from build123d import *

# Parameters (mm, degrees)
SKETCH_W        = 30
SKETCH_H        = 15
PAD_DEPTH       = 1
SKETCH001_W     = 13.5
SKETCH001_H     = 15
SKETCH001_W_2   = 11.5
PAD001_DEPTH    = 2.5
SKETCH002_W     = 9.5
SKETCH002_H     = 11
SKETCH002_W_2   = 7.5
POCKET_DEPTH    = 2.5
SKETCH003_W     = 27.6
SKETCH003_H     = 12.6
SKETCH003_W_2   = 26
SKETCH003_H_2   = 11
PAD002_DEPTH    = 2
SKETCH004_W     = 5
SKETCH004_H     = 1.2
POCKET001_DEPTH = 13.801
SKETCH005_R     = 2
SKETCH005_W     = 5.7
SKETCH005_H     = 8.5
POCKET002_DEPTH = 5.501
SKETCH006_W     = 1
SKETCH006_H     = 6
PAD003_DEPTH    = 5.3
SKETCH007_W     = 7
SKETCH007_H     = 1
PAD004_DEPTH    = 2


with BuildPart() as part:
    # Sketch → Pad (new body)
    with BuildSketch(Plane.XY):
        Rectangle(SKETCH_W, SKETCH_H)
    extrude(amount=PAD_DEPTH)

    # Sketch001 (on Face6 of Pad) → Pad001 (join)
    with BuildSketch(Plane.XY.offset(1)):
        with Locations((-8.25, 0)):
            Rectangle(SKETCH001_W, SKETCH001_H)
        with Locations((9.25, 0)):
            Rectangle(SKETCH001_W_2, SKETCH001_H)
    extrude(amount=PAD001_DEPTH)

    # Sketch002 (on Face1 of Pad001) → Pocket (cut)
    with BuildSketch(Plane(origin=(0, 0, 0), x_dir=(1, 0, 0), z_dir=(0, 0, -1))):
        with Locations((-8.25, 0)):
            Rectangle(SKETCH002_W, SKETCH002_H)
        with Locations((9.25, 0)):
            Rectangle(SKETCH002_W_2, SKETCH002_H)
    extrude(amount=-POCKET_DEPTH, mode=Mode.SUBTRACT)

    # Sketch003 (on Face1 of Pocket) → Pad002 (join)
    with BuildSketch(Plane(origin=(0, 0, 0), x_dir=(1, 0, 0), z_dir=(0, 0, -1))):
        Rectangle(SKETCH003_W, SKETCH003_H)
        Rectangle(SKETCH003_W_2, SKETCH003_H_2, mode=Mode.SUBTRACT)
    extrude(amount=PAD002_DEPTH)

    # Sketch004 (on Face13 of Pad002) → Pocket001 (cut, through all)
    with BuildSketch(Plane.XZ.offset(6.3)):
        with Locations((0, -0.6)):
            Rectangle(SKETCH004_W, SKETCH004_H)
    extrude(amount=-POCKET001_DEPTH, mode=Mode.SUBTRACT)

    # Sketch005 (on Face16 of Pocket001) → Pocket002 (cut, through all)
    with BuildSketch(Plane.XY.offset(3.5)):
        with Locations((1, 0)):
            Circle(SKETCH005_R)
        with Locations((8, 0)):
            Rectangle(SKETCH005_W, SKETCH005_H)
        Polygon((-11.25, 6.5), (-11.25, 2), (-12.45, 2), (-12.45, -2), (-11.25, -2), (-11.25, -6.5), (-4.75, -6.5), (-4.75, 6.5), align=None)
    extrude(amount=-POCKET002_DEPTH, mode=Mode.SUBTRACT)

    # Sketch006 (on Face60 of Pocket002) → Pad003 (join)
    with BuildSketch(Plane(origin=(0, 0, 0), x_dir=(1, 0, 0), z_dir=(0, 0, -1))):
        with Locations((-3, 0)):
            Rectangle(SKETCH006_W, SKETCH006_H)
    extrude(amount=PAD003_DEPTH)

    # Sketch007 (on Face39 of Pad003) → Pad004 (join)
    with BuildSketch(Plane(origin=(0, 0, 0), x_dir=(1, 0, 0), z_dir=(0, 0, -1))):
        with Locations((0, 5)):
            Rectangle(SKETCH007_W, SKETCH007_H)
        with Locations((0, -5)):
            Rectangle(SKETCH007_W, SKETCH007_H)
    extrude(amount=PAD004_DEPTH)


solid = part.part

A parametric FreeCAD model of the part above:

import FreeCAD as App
import Part
import Sketcher
from FreeCAD import Vector
Q = App.Units.Quantity


def add_polygon(sketch, points):
    """Adds a closed chain of lines whose ends are joined by coincident constraints."""
    first, n = sketch.GeometryCount, len(points)
    for a, b in zip(points, points[1:] + points[:1]):
        sketch.addGeometry(Part.LineSegment(App.Vector(*a, 0), App.Vector(*b, 0)), False)
    for i in range(n):
        sketch.addConstraint(Sketcher.Constraint("Coincident", first + i, 2, first + (i + 1) % n, 1))

doc = App.newDocument("Part")
body = doc.addObject("PartDesign::Body", "Body")

# Sketch on XY plane
sketch1 = doc.addObject("Sketcher::SketchObject", "Sketch")
body.addObject(sketch1)
sketch1.AttachmentSupport = (doc.XY_Plane, [""])
sketch1.MapMode = "FlatFace"
add_polygon(sketch1, [(-15, 8), (-15, -8), (15, -8), (15, 8)])  # lines 0-3
sketch1.addConstraint(Sketcher.Constraint("Vertical", 0))
sketch1.addConstraint(Sketcher.Constraint("Horizontal", 1))
sketch1.addConstraint(Sketcher.Constraint("Vertical", 2))
sketch1.addConstraint(Sketcher.Constraint("Horizontal", 3))
sketch1.addConstraint(Sketcher.Constraint("Symmetric", 0, 2, 2, 2, -1, 1))
sketch1.addConstraint(Sketcher.Constraint("DistanceX", 1, 1, 1, 2, Q("30 mm")))
sketch1.addConstraint(Sketcher.Constraint("DistanceY", 0, 2, 0, 1, Q("15 mm")))
pad1 = doc.addObject("PartDesign::Pad", "Pad")
body.addObject(pad1)
pad1.Profile = sketch1
pad1.Length = 1

# Sketch on XY plane
sketch2 = doc.addObject("Sketcher::SketchObject", "Sketch001")
body.addObject(sketch2)
sketch2.AttachmentSupport = (doc.XY_Plane, [""])
sketch2.MapMode = "FlatFace"
sketch2.AttachmentOffset = App.Placement(Vector(0, 0, 1), App.Rotation())
add_polygon(sketch2, [(-15, 8), (-15, -8), (-2, -8), (-2, 8)])  # lines 0-3
add_polygon(sketch2, [(4, 8), (4, -8), (15, -8), (15, 8)])  # lines 4-7
sketch2.addConstraint(Sketcher.Constraint("Vertical", 0))
sketch2.addConstraint(Sketcher.Constraint("Horizontal", 1))
sketch2.addConstraint(Sketcher.Constraint("Vertical", 2))
sketch2.addConstraint(Sketcher.Constraint("Horizontal", 3))
sketch2.addConstraint(Sketcher.Constraint("Vertical", 4))
sketch2.addConstraint(Sketcher.Constraint("Horizontal", 5))
sketch2.addConstraint(Sketcher.Constraint("Vertical", 6))
sketch2.addConstraint(Sketcher.Constraint("Horizontal", 7))
sketch2.addConstraint(Sketcher.Constraint("Symmetric", 3, 2, 5, 2, -1, 1))
sketch2.addConstraint(Sketcher.Constraint("Horizontal", 1, 2, 4, 2))
sketch2.addConstraint(Sketcher.Constraint("Horizontal", 3, 2, 6, 2))
sketch2.addConstraint(Sketcher.Constraint("DistanceY", 0, 2, 0, 1, Q("15 mm")))
sketch2.addConstraint(Sketcher.Constraint("DistanceX", 1, 1, 1, 2, Q("13.5 mm")))
sketch2.addConstraint(Sketcher.Constraint("DistanceX", 5, 1, 5, 2, Q("11.5 mm")))
sketch2.addConstraint(Sketcher.Constraint("DistanceX", 0, 2, -1, 1, Q("15 mm")))
pad2 = doc.addObject("PartDesign::Pad", "Pad001")
body.addObject(pad2)
pad2.Profile = sketch2
pad2.Length = 2.5

# Sketch on XY plane
sketch3 = doc.addObject("Sketcher::SketchObject", "Sketch002")
body.addObject(sketch3)
sketch3.AttachmentSupport = (doc.XY_Plane, [""])
sketch3.MapMode = "FlatFace"
add_polygon(sketch3, [(-13, -6), (-13, 6), (-4, 6), (-4, -6)])  # lines 0-3
add_polygon(sketch3, [(6, -6), (6, 6), (13, 6), (13, -6)])  # lines 4-7
sketch3.addConstraint(Sketcher.Constraint("Vertical", 0))
sketch3.addConstraint(Sketcher.Constraint("Horizontal", 1))
sketch3.addConstraint(Sketcher.Constraint("Vertical", 2))
sketch3.addConstraint(Sketcher.Constraint("Horizontal", 3))
sketch3.addConstraint(Sketcher.Constraint("Vertical", 4))
sketch3.addConstraint(Sketcher.Constraint("Horizontal", 5))
sketch3.addConstraint(Sketcher.Constraint("Vertical", 6))
sketch3.addConstraint(Sketcher.Constraint("Horizontal", 7))
sketch3.addConstraint(Sketcher.Constraint("Symmetric", 3, 2, 5, 2, -1, 1))
sketch3.addConstraint(Sketcher.Constraint("Horizontal", 1, 2, 4, 2))
sketch3.addConstraint(Sketcher.Constraint("Horizontal", 3, 2, 6, 2))
sketch3.addConstraint(Sketcher.Constraint("DistanceY", 0, 1, 0, 2, Q("11 mm")))
sketch3.addConstraint(Sketcher.Constraint("DistanceX", 1, 1, 1, 2, Q("9.5 mm")))
sketch3.addConstraint(Sketcher.Constraint("DistanceX", 5, 1, 5, 2, Q("7.5 mm")))
sketch3.addConstraint(Sketcher.Constraint("DistanceX", 0, 2, -1, 1, Q("13 mm")))
pocket1 = doc.addObject("PartDesign::Pocket", "Pocket")
body.addObject(pocket1)
pocket1.Profile = sketch3
pocket1.Length = 2.5
pocket1.Reversed = True

# Sketch on XY plane
sketch4 = doc.addObject("Sketcher::SketchObject", "Sketch003")
body.addObject(sketch4)
sketch4.AttachmentSupport = (doc.XY_Plane, [""])
sketch4.MapMode = "FlatFace"
add_polygon(sketch4, [(-14, -6), (-14, 6), (14, 6), (14, -6)])  # lines 0-3
add_polygon(sketch4, [(13, 6), (-13, 6), (-13, -6), (13, -6)])  # lines 4-7
sketch4.addConstraint(Sketcher.Constraint("Vertical", 0))
sketch4.addConstraint(Sketcher.Constraint("Horizontal", 1))
sketch4.addConstraint(Sketcher.Constraint("Vertical", 2))
sketch4.addConstraint(Sketcher.Constraint("Horizontal", 3))
sketch4.addConstraint(Sketcher.Constraint("Horizontal", 4))
sketch4.addConstraint(Sketcher.Constraint("Vertical", 5))
sketch4.addConstraint(Sketcher.Constraint("Horizontal", 6))
sketch4.addConstraint(Sketcher.Constraint("Vertical", 7))
sketch4.addConstraint(Sketcher.Constraint("Symmetric", 0, 2, 2, 2, -1, 1))
sketch4.addConstraint(Sketcher.Constraint("Symmetric", 4, 2, 6, 2, -1, 1))
sketch4.addConstraint(Sketcher.Constraint("DistanceX", 4, 2, 4, 1, Q("26 mm")))
sketch4.addConstraint(Sketcher.Constraint("DistanceY", 5, 2, 5, 1, Q("11 mm")))
sketch4.addConstraint(Sketcher.Constraint("DistanceX", 1, 1, 1, 2, Q("27.6 mm")))
sketch4.addConstraint(Sketcher.Constraint("DistanceY", 0, 1, 0, 2, Q("12.6 mm")))
pad3 = doc.addObject("PartDesign::Pad", "Pad002")
body.addObject(pad3)
pad3.Profile = sketch4
pad3.Length = 2
pad3.Reversed = True

# Sketch on XZ plane
sketch5 = doc.addObject("Sketcher::SketchObject", "Sketch004")
body.addObject(sketch5)
sketch5.AttachmentSupport = (doc.XZ_Plane, [""])
sketch5.MapMode = "FlatFace"
sketch5.AttachmentOffset = App.Placement(Vector(0, 0, 6.3), App.Rotation())
add_polygon(sketch5, [(-2.5, 0), (-2.5, -1.2), (2.5, -1.2), (2.5, 0)])  # lines 0-3
sketch5.addConstraint(Sketcher.Constraint("Vertical", 0))
sketch5.addConstraint(Sketcher.Constraint("Horizontal", 1))
sketch5.addConstraint(Sketcher.Constraint("Vertical", 2))
sketch5.addConstraint(Sketcher.Constraint("Horizontal", 3))
sketch5.addConstraint(Sketcher.Constraint("Symmetric", 2, 2, 3, 2, -1, 1))
sketch5.addConstraint(Sketcher.Constraint("DistanceX", 1, 1, 1, 2, Q("5 mm")))
sketch5.addConstraint(Sketcher.Constraint("DistanceY", 0, 2, 0, 1, Q("1.2 mm")))
pocket2 = doc.addObject("PartDesign::Pocket", "Pocket001")
body.addObject(pocket2)
pocket2.Profile = sketch5
pocket2.Type = "ThroughAll"

# Sketch on XY plane
sketch6 = doc.addObject("Sketcher::SketchObject", "Sketch005")
body.addObject(sketch6)
sketch6.AttachmentSupport = (doc.XY_Plane, [""])
sketch6.MapMode = "FlatFace"
sketch6.AttachmentOffset = App.Placement(Vector(0, 0, 3.5), App.Rotation())
sketch6.addGeometry(Part.Circle(Vector(1, 0, 0), Vector(0, 0, 1), 2), False)  # 0
add_polygon(sketch6, [(5.2, 4.2), (5.2, -4.2), (10.8, -4.2), (10.8, 4.2)])  # lines 1-4
add_polygon(sketch6, [(-11.2, 6.5), (-11.2, 2), (-12.4, 2), (-12.4, -2), (-11.2, -2), (-11.2, -6.5), (-4.8, -6.5), (-4.8, 6.5)])  # lines 5-12
sketch6.addConstraint(Sketcher.Constraint("Vertical", 1))
sketch6.addConstraint(Sketcher.Constraint("Horizontal", 2))
sketch6.addConstraint(Sketcher.Constraint("Vertical", 3))
sketch6.addConstraint(Sketcher.Constraint("Horizontal", 4))
sketch6.addConstraint(Sketcher.Constraint("Vertical", 5))
sketch6.addConstraint(Sketcher.Constraint("Horizontal", 6))
sketch6.addConstraint(Sketcher.Constraint("Vertical", 7))
sketch6.addConstraint(Sketcher.Constraint("Horizontal", 8))
sketch6.addConstraint(Sketcher.Constraint("Vertical", 9))
sketch6.addConstraint(Sketcher.Constraint("Horizontal", 10))
sketch6.addConstraint(Sketcher.Constraint("Vertical", 11))
sketch6.addConstraint(Sketcher.Constraint("Horizontal", 12))
sketch6.addConstraint(Sketcher.Constraint("Symmetric", 5, 2, 8, 2, -1))
sketch6.addConstraint(Sketcher.Constraint("PointOnObject", 0, 3, -1))
sketch6.addConstraint(Sketcher.Constraint("Equal", 5, 9))
sketch6.addConstraint(Sketcher.Constraint("Diameter", 0, Q("4 mm")))
sketch6.addConstraint(Sketcher.Constraint("DistanceY", 7, 2, 7, 1, Q("4 mm")))
sketch6.addConstraint(Sketcher.Constraint("DistanceY", 11, 1, 11, 2, Q("13 mm")))
sketch6.addConstraint(Sketcher.Constraint("DistanceX", 2, 1, 2, 2, Q("5.7 mm")))
sketch6.addConstraint(Sketcher.Constraint("DistanceX", 6, 2, 6, 1, Q("1.2 mm")))
sketch6.addConstraint(Sketcher.Constraint("DistanceX", 10, 1, 10, 2, Q("6.5 mm")))
sketch6.addConstraint(Sketcher.Constraint("DistanceY", 1, 2, 1, 1, Q("8.5 mm")))
sketch6.addConstraint(Sketcher.Constraint("DistanceX", -1, 1, 0, 3, Q("1 mm")))
sketch6.addConstraint(Sketcher.Constraint("DistanceX", 5, 2, 4, 2, Q("16.4 mm")))
sketch6.addConstraint(Sketcher.Constraint("DistanceX", -1, 1, 1, 2, Q("5.15 mm")))
sketch6.addConstraint(Sketcher.Constraint("DistanceY", 1, 2, -1, 1, Q("4.25 mm")))
pocket3 = doc.addObject("PartDesign::Pocket", "Pocket002")
body.addObject(pocket3)
pocket3.Profile = sketch6
pocket3.Type = "ThroughAll"

# Sketch on XY plane
sketch7 = doc.addObject("Sketcher::SketchObject", "Sketch006")
body.addObject(sketch7)
sketch7.AttachmentSupport = (doc.XY_Plane, [""])
sketch7.MapMode = "FlatFace"
add_polygon(sketch7, [(-3.5, -3), (-3.5, 3), (-2.5, 3), (-2.5, -3)])  # lines 0-3
sketch7.addConstraint(Sketcher.Constraint("Vertical", 0))
sketch7.addConstraint(Sketcher.Constraint("Horizontal", 1))
sketch7.addConstraint(Sketcher.Constraint("Vertical", 2))
sketch7.addConstraint(Sketcher.Constraint("Horizontal", 3))
sketch7.addConstraint(Sketcher.Constraint("DistanceX", 1, 1, 1, 2, Q("1 mm")))
sketch7.addConstraint(Sketcher.Constraint("DistanceY", 0, 1, 0, 2, Q("6 mm")))
sketch7.addConstraint(Sketcher.Constraint("DistanceY", -1, 1, 0, 2, Q("3 mm")))
sketch7.addConstraint(Sketcher.Constraint("DistanceX", 0, 2, -1, 1, Q("3.5 mm")))
pad4 = doc.addObject("PartDesign::Pad", "Pad003")
body.addObject(pad4)
pad4.Profile = sketch7
pad4.Length = 5.3
pad4.Reversed = True

# Sketch on XY plane
sketch8 = doc.addObject("Sketcher::SketchObject", "Sketch007")
body.addObject(sketch8)
sketch8.AttachmentSupport = (doc.XY_Plane, [""])
sketch8.MapMode = "FlatFace"
add_polygon(sketch8, [(-3.5, -5.5), (-3.5, -4.5), (3.5, -4.5), (3.5, -5.5)])  # lines 0-3
add_polygon(sketch8, [(-3.5, 4.5), (-3.5, 5.5), (3.5, 5.5), (3.5, 4.5)])  # lines 4-7
sketch8.addConstraint(Sketcher.Constraint("Vertical", 0))
sketch8.addConstraint(Sketcher.Constraint("Horizontal", 1))
sketch8.addConstraint(Sketcher.Constraint("Vertical", 2))
sketch8.addConstraint(Sketcher.Constraint("Horizontal", 3))
sketch8.addConstraint(Sketcher.Constraint("Vertical", 4))
sketch8.addConstraint(Sketcher.Constraint("Horizontal", 5))
sketch8.addConstraint(Sketcher.Constraint("Vertical", 6))
sketch8.addConstraint(Sketcher.Constraint("Horizontal", 7))
sketch8.addConstraint(Sketcher.Constraint("Symmetric", 2, 2, 4, 2, -1, 1))
sketch8.addConstraint(Sketcher.Constraint("Symmetric", 0, 2, 6, 2, -1, 1))
sketch8.addConstraint(Sketcher.Constraint("Vertical", 3, 2, 4, 2))
sketch8.addConstraint(Sketcher.Constraint("DistanceX", 1, 1, 1, 2, Q("7 mm")))
sketch8.addConstraint(Sketcher.Constraint("DistanceY", 0, 1, 0, 2, Q("1 mm")))
sketch8.addConstraint(Sketcher.Constraint("DistanceY", 0, 2, 4, 2, Q("10 mm")))
pad5 = doc.addObject("PartDesign::Pad", "Pad004")
body.addObject(pad5)
pad5.Profile = sketch8
pad5.Length = 2
pad5.Reversed = True

doc.recompute()
